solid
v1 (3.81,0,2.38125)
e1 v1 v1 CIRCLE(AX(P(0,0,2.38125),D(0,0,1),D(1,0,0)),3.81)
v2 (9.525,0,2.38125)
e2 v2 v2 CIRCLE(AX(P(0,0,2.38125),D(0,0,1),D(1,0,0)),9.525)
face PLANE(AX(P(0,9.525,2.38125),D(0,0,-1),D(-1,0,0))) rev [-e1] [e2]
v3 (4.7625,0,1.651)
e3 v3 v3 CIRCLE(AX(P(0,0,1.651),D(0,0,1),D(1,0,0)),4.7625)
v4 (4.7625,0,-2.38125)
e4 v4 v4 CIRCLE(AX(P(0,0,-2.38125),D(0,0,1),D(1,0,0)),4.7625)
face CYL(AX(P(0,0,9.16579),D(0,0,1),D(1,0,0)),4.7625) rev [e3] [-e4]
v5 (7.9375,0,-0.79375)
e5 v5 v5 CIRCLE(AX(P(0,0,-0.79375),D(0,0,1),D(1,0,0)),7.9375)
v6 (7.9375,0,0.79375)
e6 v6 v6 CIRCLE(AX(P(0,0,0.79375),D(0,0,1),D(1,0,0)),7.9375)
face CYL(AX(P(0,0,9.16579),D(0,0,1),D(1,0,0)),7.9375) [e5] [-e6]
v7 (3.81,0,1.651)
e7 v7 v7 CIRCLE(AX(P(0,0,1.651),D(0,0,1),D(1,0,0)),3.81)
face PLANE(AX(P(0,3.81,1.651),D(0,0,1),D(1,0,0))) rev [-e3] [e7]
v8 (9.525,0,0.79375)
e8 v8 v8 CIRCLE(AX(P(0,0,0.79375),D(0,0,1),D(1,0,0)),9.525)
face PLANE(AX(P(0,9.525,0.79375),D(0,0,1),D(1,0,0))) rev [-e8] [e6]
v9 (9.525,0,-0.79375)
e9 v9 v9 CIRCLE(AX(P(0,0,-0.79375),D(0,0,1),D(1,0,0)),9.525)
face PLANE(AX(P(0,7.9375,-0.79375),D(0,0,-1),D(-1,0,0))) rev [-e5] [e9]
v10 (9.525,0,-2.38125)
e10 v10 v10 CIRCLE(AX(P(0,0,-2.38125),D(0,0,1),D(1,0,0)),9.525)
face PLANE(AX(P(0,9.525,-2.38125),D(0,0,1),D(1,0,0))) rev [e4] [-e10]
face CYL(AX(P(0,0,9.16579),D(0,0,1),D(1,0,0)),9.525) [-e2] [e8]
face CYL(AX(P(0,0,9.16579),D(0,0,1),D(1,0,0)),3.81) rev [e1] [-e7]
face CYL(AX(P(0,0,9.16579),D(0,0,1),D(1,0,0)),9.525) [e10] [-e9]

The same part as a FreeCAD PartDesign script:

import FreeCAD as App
import Part
import Sketcher

V = App.Vector
Q = App.Units.Quantity


def add_polygon(sketch, points):
    """Adds a closed chain of lines whose ends are joined by coincident constraints."""
    first, n = sketch.GeometryCount, len(points)
    for a, b in zip(points, points[1:] + points[:1]):
        sketch.addGeometry(Part.LineSegment(App.Vector(*a, 0), App.Vector(*b, 0)), False)
    for i in range(n):
        sketch.addConstraint(Sketcher.Constraint("Coincident", first + i, 2, first + (i + 1) % n, 1))

doc = App.newDocument("Part")
body = doc.addObject("PartDesign::Body", "Body")

# Sketch on YZ plane
sketch1 = doc.addObject("Sketcher::SketchObject", "Sketch")
body.addObject(sketch1)
sketch1.AttachmentSupport = (doc.YZ_Plane, [""])
sketch1.MapMode = "FlatFace"
add_polygon(sketch1, [(9.5, 2.4), (3.8, 2.4), (3.8, 1.7), (4.8, 1.7), (4.8, -2.4), (9.5, -2.4), (9.5, -0.8), (7.9, -0.8), (7.9, 0.8), (9.5, 0.8)])  # lines 0-9
sketch1.addConstraint([
    Sketcher.Constraint("Horizontal", 0),
    Sketcher.Constraint("Vertical", 1),
    Sketcher.Constraint("Horizontal", 2),
    Sketcher.Constraint("Vertical", 3),
    Sketcher.Constraint("Horizontal", 4),
    Sketcher.Constraint("Vertical", 5),
    Sketcher.Constraint("Horizontal", 6),
    Sketcher.Constraint("Vertical", 7),
    Sketcher.Constraint("Horizontal", 8),
    Sketcher.Constraint("Vertical", 9),
    Sketcher.Constraint("Symmetric", 5, 2, 8, 2, -1),
    Sketcher.Constraint("Equal", 8, 5),
    Sketcher.Constraint("Equal", 5, 7),
    Sketcher.Constraint("Equal", 7, 9),
    Sketcher.Constraint("DistanceX", 0, 2, 0, 1, Q("0.225 in")),
    Sketcher.Constraint("DistanceX", 4, 1, 4, 2, Q("0.1875 in")),
    Sketcher.Constraint("DistanceX", 6, 2, 6, 1, Q("0.0625 in")),
    Sketcher.Constraint("DistanceX", -1, 1, 0, 2, Q("0.15 in")),
    Sketcher.Constraint("DistanceY", -1, 1, 1, 2, Q("0.065 in")),
])
revolution = doc.addObject("PartDesign::Revolution", "Revolution")
body.addObject(revolution)
revolution.Profile = sketch1
revolution.ReferenceAxis = (sketch1, ["V_Axis"])
revolution.Angle = 360

doc.recompute()
